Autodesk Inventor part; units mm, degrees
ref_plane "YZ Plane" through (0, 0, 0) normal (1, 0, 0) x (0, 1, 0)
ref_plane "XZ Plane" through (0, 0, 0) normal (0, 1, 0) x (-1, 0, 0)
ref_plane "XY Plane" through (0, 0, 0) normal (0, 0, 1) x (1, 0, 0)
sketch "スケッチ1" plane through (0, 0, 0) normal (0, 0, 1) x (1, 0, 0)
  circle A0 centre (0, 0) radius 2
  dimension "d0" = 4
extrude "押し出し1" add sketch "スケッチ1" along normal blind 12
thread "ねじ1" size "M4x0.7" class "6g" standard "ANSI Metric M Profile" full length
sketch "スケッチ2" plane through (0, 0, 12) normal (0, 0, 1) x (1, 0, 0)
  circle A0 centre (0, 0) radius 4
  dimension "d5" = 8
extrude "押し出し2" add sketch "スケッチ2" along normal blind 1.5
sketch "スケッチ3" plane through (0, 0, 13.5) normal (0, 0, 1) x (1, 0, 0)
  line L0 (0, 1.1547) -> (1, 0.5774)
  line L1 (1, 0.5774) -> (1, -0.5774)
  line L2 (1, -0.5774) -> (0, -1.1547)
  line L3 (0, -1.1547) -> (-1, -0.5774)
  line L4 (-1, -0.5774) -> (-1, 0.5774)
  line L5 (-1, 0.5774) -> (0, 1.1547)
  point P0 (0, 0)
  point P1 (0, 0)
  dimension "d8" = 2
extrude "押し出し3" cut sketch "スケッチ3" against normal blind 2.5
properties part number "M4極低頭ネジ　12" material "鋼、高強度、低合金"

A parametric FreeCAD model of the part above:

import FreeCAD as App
import Part
import Sketcher

V = App.Vector
Q = App.Units.Quantity


def add_polygon(sketch, points):
    """Adds a closed chain of lines whose ends are joined by coincident constraints."""
    first, n = sketch.GeometryCount, len(points)
    for a, b in zip(points, points[1:] + points[:1]):
        sketch.addGeometry(Part.LineSegment(App.Vector(*a, 0), App.Vector(*b, 0)), False)
    for i in range(n):
        sketch.addConstraint(Sketcher.Constraint("Coincident", first + i, 2, first + (i + 1) % n, 1))

doc = App.newDocument("Part")
params = doc.addObject("Spreadsheet::Sheet", "Params")
for row, (alias, value) in enumerate([
    ("sketch1_diameter", "4 mm"),
    ("pad1_length", "12 mm"),
    ("sketch2_diameter", "8 mm"),
    ("pad2_length", "1.5 mm"),
    ("pocket1_length", "2.5 mm"),
], start=1):
    params.set(f"A{row}", alias)
    params.set(f"B{row}", "=" + value)
    params.setAlias(f"B{row}", alias)

body = doc.addObject("PartDesign::Body", "Body")

# Sketch on XY plane
sketch1 = doc.addObject("Sketcher::SketchObject", "Sketch")
body.addObject(sketch1)
sketch1.AttachmentSupport = (doc.XY_Plane, [""])
sketch1.MapMode = "FlatFace"
sketch1.addGeometry(Part.Circle(V(0, 0, 0), V(0, 0, 1), 2), False)
sketch1.addConstraint([
    Sketcher.Constraint("Coincident", 0, 3, -1, 1),
    Sketcher.Constraint("Diameter", 0, Q("4 mm")),
])
sketch1.setExpression("Constraints[1]", "Params.sketch1_diameter")
pad1 = doc.addObject("PartDesign::Pad", "Pad")
body.addObject(pad1)
pad1.Profile = sketch1
pad1.setExpression("Length", "Params.pad1_length")

# Sketch on XY plane
sketch2 = doc.addObject("Sketcher::SketchObject", "Sketch001")
body.addObject(sketch2)
sketch2.AttachmentSupport = (doc.XY_Plane, [""])
sketch2.MapMode = "FlatFace"
sketch2.AttachmentOffset = App.Placement(V(0, 0, 12), App.Rotation())
sketch2.addGeometry(Part.Circle(V(0, 0, 0), V(0, 0, 1), 4), False)
sketch2.addConstraint([
    Sketcher.Constraint("Coincident", 0, 3, -1, 1),
    Sketcher.Constraint("Diameter", 0, Q("8 mm")),
])
sketch2.setExpression("Constraints[1]", "Params.sketch2_diameter")
pad2 = doc.addObject("PartDesign::Pad", "Pad001")
body.addObject(pad2)
pad2.Profile = sketch2
pad2.setExpression("Length", "Params.pad2_length")

# Sketch on XY plane
sketch3 = doc.addObject("Sketcher::SketchObject", "Sketch002")
body.addObject(sketch3)
sketch3.AttachmentSupport = (doc.XY_Plane, [""])
sketch3.MapMode = "FlatFace"
sketch3.AttachmentOffset = App.Placement(V(0, 0, 13.5), App.Rotation())
add_polygon(sketch3, [(1, 0.6), (0, 1.2), (-1, 0.6), (-1, -0.6), (0, -1.2), (1, -0.6)])  # lines 0-5
sketch3.addConstraint([
    Sketcher.Constraint("Vertical", 2),
    Sketcher.Constraint("Vertical", 5),
    Sketcher.Constraint("Symmetric", 0, 2, 3, 2, -1, 1),
    Sketcher.Constraint("Symmetric", 1, 2, 4, 2, -1, 1),
    Sketcher.Constraint("PointOnObject", 0, 2, -2),
    Sketcher.Constraint("Parallel", 0, 3),
    Sketcher.Constraint("Horizontal", 2, 2, 4, 2),
    Sketcher.Constraint("DistanceX", 2, 2, 4, 2, Q("2 mm")),
    Sketcher.Constraint("DistanceY", 2, 2, 2, 1, Q("1.1548 mm")),
    Sketcher.Constraint("DistanceY", 2, 2, 0, 2, Q("1.732 mm")),
])
pocket1 = doc.addObject("PartDesign::Pocket", "Pocket")
body.addObject(pocket1)
pocket1.Profile = sketch3
pocket1.setExpression("Length", "Params.pocket1_length")

doc.recompute()
